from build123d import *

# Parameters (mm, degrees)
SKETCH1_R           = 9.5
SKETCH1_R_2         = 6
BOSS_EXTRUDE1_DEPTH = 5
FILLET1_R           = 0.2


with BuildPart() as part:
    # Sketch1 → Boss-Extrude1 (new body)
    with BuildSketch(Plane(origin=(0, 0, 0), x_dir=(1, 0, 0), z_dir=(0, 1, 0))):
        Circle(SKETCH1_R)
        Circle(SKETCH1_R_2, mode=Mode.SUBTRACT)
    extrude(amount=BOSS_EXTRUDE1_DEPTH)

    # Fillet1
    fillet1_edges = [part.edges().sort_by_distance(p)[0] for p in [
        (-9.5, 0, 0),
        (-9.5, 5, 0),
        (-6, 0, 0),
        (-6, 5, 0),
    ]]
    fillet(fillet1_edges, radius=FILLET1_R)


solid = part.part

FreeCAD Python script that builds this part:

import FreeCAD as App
import Part
import Sketcher
Q = App.Units.Quantity


def edges_at(feature, points):
    """Names of the edges that pass closest to the given points."""
    edges = feature.Shape.Edges
    near = lambda p: min(range(len(edges)), key=lambda i: edges[i].distToShape(Part.Vertex(*p))[0])
    return sorted({f"Edge{near(p) + 1}" for p in points})

doc = App.newDocument("Part")
body = doc.addObject("PartDesign::Body", "Body")

# Sketch on XZ plane
sketch1 = body.newObject("Sketcher::SketchObject", "Sketch")
sketch1.AttachmentSupport = (doc.getObject("XZ_Plane"), [""])
sketch1.MapMode = "FlatFace"
sketch1.addGeometry(Part.Circle(App.Vector(0, 0, 0), App.Vector(0, 0, 1), 9.5), False)
sketch1.addGeometry(Part.Circle(App.Vector(0, 0, 0), App.Vector(0, 0, 1), 6), False)
sketch1.addConstraint(Sketcher.Constraint("Coincident", 0, 3, -1, 1))
sketch1.addConstraint(Sketcher.Constraint("Coincident", 1, 3, -1, 1))
sketch1.addConstraint(Sketcher.Constraint("Diameter", 0, Q("19 mm")))
sketch1.addConstraint(Sketcher.Constraint("Diameter", 1, Q("12 mm")))
pad1 = body.newObject("PartDesign::Pad", "Pad")
pad1.Profile = sketch1
pad1.Length = 5
pad1.Reversed = True
doc.recompute()

fillet = body.newObject("PartDesign::Fillet", "Fillet")
fillet.Base = (pad1, edges_at(pad1, [
    (-9.5, 0, 0),
    (-9.5, 5, 0),
    (-6, 0, 0),
    (-6, 5, 0),
]))
fillet.Radius = 0.2

doc.recompute()
